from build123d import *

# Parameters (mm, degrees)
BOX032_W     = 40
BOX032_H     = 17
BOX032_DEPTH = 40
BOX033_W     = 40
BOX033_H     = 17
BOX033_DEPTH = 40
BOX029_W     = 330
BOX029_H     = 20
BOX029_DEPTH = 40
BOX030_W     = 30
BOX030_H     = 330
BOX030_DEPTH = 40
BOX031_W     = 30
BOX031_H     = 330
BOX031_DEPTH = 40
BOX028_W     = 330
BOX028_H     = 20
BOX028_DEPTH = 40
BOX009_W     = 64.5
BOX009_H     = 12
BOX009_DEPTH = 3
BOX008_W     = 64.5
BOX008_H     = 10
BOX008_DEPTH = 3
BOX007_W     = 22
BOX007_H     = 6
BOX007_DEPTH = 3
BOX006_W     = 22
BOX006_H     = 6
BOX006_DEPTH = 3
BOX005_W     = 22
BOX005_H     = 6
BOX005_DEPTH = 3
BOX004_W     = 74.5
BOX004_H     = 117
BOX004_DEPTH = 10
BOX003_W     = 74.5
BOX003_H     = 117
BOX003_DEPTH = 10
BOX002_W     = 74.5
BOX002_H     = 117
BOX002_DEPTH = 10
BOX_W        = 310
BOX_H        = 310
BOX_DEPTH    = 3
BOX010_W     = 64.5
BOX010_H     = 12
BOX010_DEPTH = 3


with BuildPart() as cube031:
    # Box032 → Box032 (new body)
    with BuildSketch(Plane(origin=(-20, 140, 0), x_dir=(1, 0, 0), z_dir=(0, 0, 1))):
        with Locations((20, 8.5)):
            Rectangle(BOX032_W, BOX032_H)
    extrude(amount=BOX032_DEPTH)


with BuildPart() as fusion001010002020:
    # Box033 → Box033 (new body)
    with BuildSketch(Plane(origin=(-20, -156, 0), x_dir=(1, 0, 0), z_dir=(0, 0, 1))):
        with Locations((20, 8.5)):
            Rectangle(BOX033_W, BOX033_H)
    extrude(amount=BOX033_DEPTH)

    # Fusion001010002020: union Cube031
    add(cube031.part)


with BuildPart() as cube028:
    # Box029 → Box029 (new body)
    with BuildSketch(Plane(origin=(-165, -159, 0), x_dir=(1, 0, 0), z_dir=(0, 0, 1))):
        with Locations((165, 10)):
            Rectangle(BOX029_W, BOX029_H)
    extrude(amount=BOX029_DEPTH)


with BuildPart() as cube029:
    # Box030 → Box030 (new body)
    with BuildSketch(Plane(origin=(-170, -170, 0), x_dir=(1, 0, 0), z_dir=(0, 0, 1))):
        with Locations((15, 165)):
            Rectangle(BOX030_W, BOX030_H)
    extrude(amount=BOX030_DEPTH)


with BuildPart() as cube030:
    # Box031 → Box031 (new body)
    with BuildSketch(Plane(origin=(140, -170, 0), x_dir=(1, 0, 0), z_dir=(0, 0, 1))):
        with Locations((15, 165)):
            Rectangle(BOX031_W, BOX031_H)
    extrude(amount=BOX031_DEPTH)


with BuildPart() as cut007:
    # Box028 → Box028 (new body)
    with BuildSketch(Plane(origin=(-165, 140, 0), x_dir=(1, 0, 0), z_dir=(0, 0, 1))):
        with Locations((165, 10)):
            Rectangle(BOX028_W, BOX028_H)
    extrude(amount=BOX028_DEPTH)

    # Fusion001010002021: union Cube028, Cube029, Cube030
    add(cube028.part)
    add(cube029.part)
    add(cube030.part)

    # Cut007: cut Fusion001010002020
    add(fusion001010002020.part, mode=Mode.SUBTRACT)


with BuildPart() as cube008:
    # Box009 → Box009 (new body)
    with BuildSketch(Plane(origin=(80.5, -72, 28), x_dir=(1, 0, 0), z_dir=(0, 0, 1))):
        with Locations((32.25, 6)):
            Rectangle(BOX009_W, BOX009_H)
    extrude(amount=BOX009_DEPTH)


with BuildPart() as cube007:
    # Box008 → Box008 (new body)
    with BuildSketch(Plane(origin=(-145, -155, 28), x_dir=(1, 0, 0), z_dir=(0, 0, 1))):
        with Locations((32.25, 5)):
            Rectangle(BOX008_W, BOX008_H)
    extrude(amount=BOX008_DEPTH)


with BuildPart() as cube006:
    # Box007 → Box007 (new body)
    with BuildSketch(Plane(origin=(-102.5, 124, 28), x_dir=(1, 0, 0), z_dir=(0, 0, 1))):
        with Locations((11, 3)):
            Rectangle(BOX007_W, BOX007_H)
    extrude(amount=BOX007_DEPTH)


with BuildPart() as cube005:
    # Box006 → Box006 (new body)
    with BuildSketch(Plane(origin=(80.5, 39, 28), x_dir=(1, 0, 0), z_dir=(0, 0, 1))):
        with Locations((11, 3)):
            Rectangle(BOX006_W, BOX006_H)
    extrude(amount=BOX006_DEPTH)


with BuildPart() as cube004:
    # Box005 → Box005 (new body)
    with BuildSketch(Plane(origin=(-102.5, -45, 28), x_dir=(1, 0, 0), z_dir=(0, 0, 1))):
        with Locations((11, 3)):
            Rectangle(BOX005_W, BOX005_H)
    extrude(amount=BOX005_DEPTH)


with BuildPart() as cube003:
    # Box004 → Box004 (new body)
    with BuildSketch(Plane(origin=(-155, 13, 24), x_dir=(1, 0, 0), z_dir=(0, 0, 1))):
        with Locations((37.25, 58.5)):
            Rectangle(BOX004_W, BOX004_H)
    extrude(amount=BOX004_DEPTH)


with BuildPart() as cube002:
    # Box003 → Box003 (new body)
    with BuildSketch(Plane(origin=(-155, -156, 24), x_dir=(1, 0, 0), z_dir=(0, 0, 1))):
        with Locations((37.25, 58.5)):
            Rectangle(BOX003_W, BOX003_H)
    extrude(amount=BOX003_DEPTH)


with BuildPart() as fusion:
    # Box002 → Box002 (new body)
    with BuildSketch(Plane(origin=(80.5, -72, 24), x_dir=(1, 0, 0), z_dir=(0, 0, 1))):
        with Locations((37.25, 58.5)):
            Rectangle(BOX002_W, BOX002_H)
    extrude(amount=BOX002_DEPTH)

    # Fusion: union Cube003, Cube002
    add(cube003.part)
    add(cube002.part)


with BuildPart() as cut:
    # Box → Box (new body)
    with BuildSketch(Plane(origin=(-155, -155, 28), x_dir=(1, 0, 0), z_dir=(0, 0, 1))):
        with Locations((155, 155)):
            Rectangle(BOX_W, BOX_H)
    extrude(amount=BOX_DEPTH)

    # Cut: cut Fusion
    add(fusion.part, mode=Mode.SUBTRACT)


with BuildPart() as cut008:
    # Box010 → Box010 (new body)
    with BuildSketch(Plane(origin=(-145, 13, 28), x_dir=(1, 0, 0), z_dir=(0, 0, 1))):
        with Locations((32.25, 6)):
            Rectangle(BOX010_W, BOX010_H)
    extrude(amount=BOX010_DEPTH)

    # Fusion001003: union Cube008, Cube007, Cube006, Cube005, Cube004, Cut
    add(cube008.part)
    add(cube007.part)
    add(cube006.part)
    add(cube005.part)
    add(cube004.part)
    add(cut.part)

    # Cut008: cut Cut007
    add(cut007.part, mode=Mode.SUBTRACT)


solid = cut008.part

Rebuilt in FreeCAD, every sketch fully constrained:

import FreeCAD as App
import Part
import Sketcher


def add_polygon(sketch, points):
    """Adds a closed chain of lines whose ends are joined by coincident constraints."""
    first, n = sketch.GeometryCount, len(points)
    for a, b in zip(points, points[1:] + points[:1]):
        sketch.addGeometry(Part.LineSegment(App.Vector(*a, 0), App.Vector(*b, 0)), False)
    for i in range(n):
        sketch.addConstraint(Sketcher.Constraint("Coincident", first + i, 2, first + (i + 1) % n, 1))

doc = App.newDocument("Part")
body = doc.addObject("PartDesign::Body", "Body")

# Sketch on XY plane
sketch1 = body.newObject("Sketcher::SketchObject", "Sketch")
sketch1.AttachmentSupport = (doc.getObject("XY_Plane"), [""])
sketch1.MapMode = "FlatFace"
add_polygon(sketch1, [(-20, 157), (-20, 140), (20, 140), (20, 157)])  # lines 0-3
sketch1.addConstraint(Sketcher.Constraint("Vertical", 0))
sketch1.addConstraint(Sketcher.Constraint("Horizontal", 1))
sketch1.addConstraint(Sketcher.Constraint("Vertical", 2))
sketch1.addConstraint(Sketcher.Constraint("Horizontal", 3))
sketch1.addConstraint(Sketcher.Constraint("DistanceX", 1, 1, 1, 2, 40.0))
sketch1.addConstraint(Sketcher.Constraint("DistanceY", 0, 2, 0, 1, 17.0))
sketch1.addConstraint(Sketcher.Constraint("DistanceX", 0, 2, -1, 1, 20.0))
sketch1.addConstraint(Sketcher.Constraint("DistanceY", -1, 1, 0, 2, 140.0))
pad1 = body.newObject("PartDesign::Pad", "Pad")
pad1.Profile = sketch1
pad1.Length = 40
body2 = doc.addObject("PartDesign::Body", "Body001")
body2.AllowCompound = True

# Sketch on XY plane
sketch2 = body2.newObject("Sketcher::SketchObject", "Sketch001")
sketch2.AttachmentSupport = (doc.getObject("XY_Plane001"), [""])
sketch2.MapMode = "FlatFace"
add_polygon(sketch2, [(-20, -139), (-20, -156), (20, -156), (20, -139)])  # lines 0-3
sketch2.addConstraint(Sketcher.Constraint("Vertical", 0))
sketch2.addConstraint(Sketcher.Constraint("Horizontal", 1))
sketch2.addConstraint(Sketcher.Constraint("Vertical", 2))
sketch2.addConstraint(Sketcher.Constraint("Horizontal", 3))
sketch2.addConstraint(Sketcher.Constraint("DistanceX", 1, 1, 1, 2, 40.0))
sketch2.addConstraint(Sketcher.Constraint("DistanceY", 0, 2, 0, 1, 17.0))
sketch2.addConstraint(Sketcher.Constraint("DistanceX", 0, 2, -1, 1, 20.0))
sketch2.addConstraint(Sketcher.Constraint("DistanceY", 0, 2, -1, 1, 156.0))
pad2 = body2.newObject("PartDesign::Pad", "Pad001")
pad2.Profile = sketch2
pad2.Length = 40
doc.recompute()

boolean = body2.newObject("PartDesign::Boolean", "Boolean")
boolean.Type = "Fuse"
boolean.addObjects([body])
body3 = doc.addObject("PartDesign::Body", "Body002")

# Sketch on XY plane
sketch3 = body3.newObject("Sketcher::SketchObject", "Sketch002")
sketch3.AttachmentSupport = (doc.getObject("XY_Plane002"), [""])
sketch3.MapMode = "FlatFace"
add_polygon(sketch3, [(-165, -139), (-165, -159), (165, -159), (165, -139)])  # lines 0-3
sketch3.addConstraint(Sketcher.Constraint("Vertical", 0))
sketch3.addConstraint(Sketcher.Constraint("Horizontal", 1))
sketch3.addConstraint(Sketcher.Constraint("Vertical", 2))
sketch3.addConstraint(Sketcher.Constraint("Horizontal", 3))
sketch3.addConstraint(Sketcher.Constraint("DistanceX", 1, 1, 1, 2, 330.0))
sketch3.addConstraint(Sketcher.Constraint("DistanceY", 0, 2, 0, 1, 20.0))
sketch3.addConstraint(Sketcher.Constraint("DistanceX", 0, 2, -1, 1, 165.0))
sketch3.addConstraint(Sketcher.Constraint("DistanceY", 0, 2, -1, 1, 159.0))
pad3 = body3.newObject("PartDesign::Pad", "Pad002")
pad3.Profile = sketch3
pad3.Length = 40
body4 = doc.addObject("PartDesign::Body", "Body003")

# Sketch on XY plane
sketch4 = body4.newObject("Sketcher::SketchObject", "Sketch003")
sketch4.AttachmentSupport = (doc.getObject("XY_Plane003"), [""])
sketch4.MapMode = "FlatFace"
add_polygon(sketch4, [(-170, 160), (-170, -170), (-140, -170), (-140, 160)])  # lines 0-3
sketch4.addConstraint(Sketcher.Constraint("Vertical", 0))
sketch4.addConstraint(Sketcher.Constraint("Horizontal", 1))
sketch4.addConstraint(Sketcher.Constraint("Vertical", 2))
sketch4.addConstraint(Sketcher.Constraint("Horizontal", 3))
sketch4.addConstraint(Sketcher.Constraint("DistanceX", 1, 1, 1, 2, 30.0))
sketch4.addConstraint(Sketcher.Constraint("DistanceY", 0, 2, 0, 1, 330.0))
sketch4.addConstraint(Sketcher.Constraint("DistanceX", 0, 2, -1, 1, 170.0))
sketch4.addConstraint(Sketcher.Constraint("DistanceY", 0, 2, -1, 1, 170.0))
pad4 = body4.newObject("PartDesign::Pad", "Pad003")
pad4.Profile = sketch4
pad4.Length = 40
body5 = doc.addObject("PartDesign::Body", "Body004")

# Sketch on XY plane
sketch5 = body5.newObject("Sketcher::SketchObject", "Sketch004")
sketch5.AttachmentSupport = (doc.getObject("XY_Plane004"), [""])
sketch5.MapMode = "FlatFace"
add_polygon(sketch5, [(140, 160), (140, -170), (170, -170), (170, 160)])  # lines 0-3
sketch5.addConstraint(Sketcher.Constraint("Vertical", 0))
sketch5.addConstraint(Sketcher.Constraint("Horizontal", 1))
sketch5.addConstraint(Sketcher.Constraint("Vertical", 2))
sketch5.addConstraint(Sketcher.Constraint("Horizontal", 3))
sketch5.addConstraint(Sketcher.Constraint("DistanceX", 1, 1, 1, 2, 30.0))
sketch5.addConstraint(Sketcher.Constraint("DistanceY", 0, 2, 0, 1, 330.0))
sketch5.addConstraint(Sketcher.Constraint("DistanceX", -1, 1, 0, 2, 140.0))
sketch5.addConstraint(Sketcher.Constraint("DistanceY", 0, 2, -1, 1, 170.0))
pad5 = body5.newObject("PartDesign::Pad", "Pad004")
pad5.Profile = sketch5
pad5.Length = 40
body6 = doc.addObject("PartDesign::Body", "Body005")
body6.AllowCompound = True

# Sketch on XY plane
sketch6 = body6.newObject("Sketcher::SketchObject", "Sketch005")
sketch6.AttachmentSupport = (doc.getObject("XY_Plane005"), [""])
sketch6.MapMode = "FlatFace"
add_polygon(sketch6, [(-165, 160), (-165, 140), (165, 140), (165, 160)])  # lines 0-3
sketch6.addConstraint(Sketcher.Constraint("Vertical", 0))
sketch6.addConstraint(Sketcher.Constraint("Horizontal", 1))
sketch6.addConstraint(Sketcher.Constraint("Vertical", 2))
sketch6.addConstraint(Sketcher.Constraint("Horizontal", 3))
sketch6.addConstraint(Sketcher.Constraint("DistanceX", 1, 1, 1, 2, 330.0))
sketch6.addConstraint(Sketcher.Constraint("DistanceY", 0, 2, 0, 1, 20.0))
sketch6.addConstraint(Sketcher.Constraint("DistanceX", 0, 2, -1, 1, 165.0))
sketch6.addConstraint(Sketcher.Constraint("DistanceY", -1, 1, 0, 2, 140.0))
pad6 = body6.newObject("PartDesign::Pad", "Pad005")
pad6.Profile = sketch6
pad6.Length = 40
doc.recompute()

boolean2 = body6.newObject("PartDesign::Boolean", "Boolean001")
boolean2.Type = "Fuse"
boolean2.addObjects([body3])
doc.recompute()

boolean3 = body6.newObject("PartDesign::Boolean", "Boolean002")
boolean3.Type = "Fuse"
boolean3.addObjects([body4])
doc.recompute()

boolean4 = body6.newObject("PartDesign::Boolean", "Boolean003")
boolean4.Type = "Fuse"
boolean4.addObjects([body5])
doc.recompute()

boolean5 = body6.newObject("PartDesign::Boolean", "Boolean004")
boolean5.Type = "Cut"
boolean5.addObjects([body2])
body7 = doc.addObject("PartDesign::Body", "Body006")

# Sketch on XY plane
sketch7 = body7.newObject("Sketcher::SketchObject", "Sketch006")
sketch7.AttachmentSupport = (doc.getObject("XY_Plane006"), [""])
sketch7.MapMode = "FlatFace"
sketch7.AttachmentOffset = App.Placement(App.Vector(0, 0, 28), App.Rotation())
add_polygon(sketch7, [(80, -60), (80, -72), (145, -72), (145, -60)])  # lines 0-3
sketch7.addConstraint(Sketcher.Constraint("Vertical", 0))
sketch7.addConstraint(Sketcher.Constraint("Horizontal", 1))
sketch7.addConstraint(Sketcher.Constraint("Vertical", 2))
sketch7.addConstraint(Sketcher.Constraint("Horizontal", 3))
sketch7.addConstraint(Sketcher.Constraint("DistanceY", 0, 2, 0, 1, 12.0))
sketch7.addConstraint(Sketcher.Constraint("DistanceX", 1, 1, 1, 2, 64.5))
sketch7.addConstraint(Sketcher.Constraint("DistanceY", 0, 2, -1, 1, 72.0))
sketch7.addConstraint(Sketcher.Constraint("DistanceX", -1, 1, 1, 2, 145.0))
pad7 = body7.newObject("PartDesign::Pad", "Pad006")
pad7.Profile = sketch7
pad7.Length = 3
body8 = doc.addObject("PartDesign::Body", "Body007")

# Sketch on XY plane
sketch8 = body8.newObject("Sketcher::SketchObject", "Sketch007")
sketch8.AttachmentSupport = (doc.getObject("XY_Plane007"), [""])
sketch8.MapMode = "FlatFace"
sketch8.AttachmentOffset = App.Placement(App.Vector(0, 0, 28), App.Rotation())
add_polygon(sketch8, [(-145, -145), (-145, -155), (-80, -155), (-80, -145)])  # lines 0-3
sketch8.addConstraint(Sketcher.Constraint("Vertical", 0))
sketch8.addConstraint(Sketcher.Constraint("Horizontal", 1))
sketch8.addConstraint(Sketcher.Constraint("Vertical", 2))
sketch8.addConstraint(Sketcher.Constraint("Horizontal", 3))
sketch8.addConstraint(Sketcher.Constraint("DistanceY", 0, 2, 0, 1, 10.0))
sketch8.addConstraint(Sketcher.Constraint("DistanceX", 1, 1, 1, 2, 64.5))
sketch8.addConstraint(Sketcher.Constraint("DistanceX", 0, 2, -1, 1, 145.0))
sketch8.addConstraint(Sketcher.Constraint("DistanceY", 0, 2, -1, 1, 155.0))
pad8 = body8.newObject("PartDesign::Pad", "Pad007")
pad8.Profile = sketch8
pad8.Length = 3
body9 = doc.addObject("PartDesign::Body", "Body008")

# Sketch on XY plane
sketch9 = body9.newObject("Sketcher::SketchObject", "Sketch008")
sketch9.AttachmentSupport = (doc.getObject("XY_Plane008"), [""])
sketch9.MapMode = "FlatFace"
sketch9.AttachmentOffset = App.Placement(App.Vector(0, 0, 28), App.Rotation())
add_polygon(sketch9, [(-102, 130), (-102, 124), (-80, 124), (-80, 130)])  # lines 0-3
sketch9.addConstraint(Sketcher.Constraint("Vertical", 0))
sketch9.addConstraint(Sketcher.Constraint("Horizontal", 1))
sketch9.addConstraint(Sketcher.Constraint("Vertical", 2))
sketch9.addConstraint(Sketcher.Constraint("Horizontal", 3))
sketch9.addConstraint(Sketcher.Constraint("DistanceX", 1, 1, 1, 2, 22.0))
sketch9.addConstraint(Sketcher.Constraint("DistanceY", 0, 2, 0, 1, 6.0))
sketch9.addConstraint(Sketcher.Constraint("DistanceY", -1, 1, 0, 2, 124.0))
sketch9.addConstraint(Sketcher.Constraint("DistanceX", 0, 2, -1, 1, 102.5))
pad9 = body9.newObject("PartDesign::Pad", "Pad008")
pad9.Profile = sketch9
pad9.Length = 3
body10 = doc.addObject("PartDesign::Body", "Body009")

# Sketch on XY plane
sketch10 = body10.newObject("Sketcher::SketchObject", "Sketch009")
sketch10.AttachmentSupport = (doc.getObject("XY_Plane009"), [""])
sketch10.MapMode = "FlatFace"
sketch10.AttachmentOffset = App.Placement(App.Vector(0, 0, 28), App.Rotation())
add_polygon(sketch10, [(80, 45), (80, 39), (102, 39), (102, 45)])  # lines 0-3
sketch10.addConstraint(Sketcher.Constraint("Vertical", 0))
sketch10.addConstraint(Sketcher.Constraint("Horizontal", 1))
sketch10.addConstraint(Sketcher.Constraint("Vertical", 2))
sketch10.addConstraint(Sketcher.Constraint("Horizontal", 3))
sketch10.addConstraint(Sketcher.Constraint("DistanceX", 1, 1, 1, 2, 22.0))
sketch10.addConstraint(Sketcher.Constraint("DistanceY", 0, 2, 0, 1, 6.0))
sketch10.addConstraint(Sketcher.Constraint("DistanceY", -1, 1, 0, 2, 39.0))
sketch10.addConstraint(Sketcher.Constraint("DistanceX", -1, 1, 0, 2, 80.5))
pad10 = body10.newObject("PartDesign::Pad", "Pad009")
pad10.Profile = sketch10
pad10.Length = 3
body11 = doc.addObject("PartDesign::Body", "Body010")

# Sketch on XY plane
sketch11 = body11.newObject("Sketcher::SketchObject", "Sketch010")
sketch11.AttachmentSupport = (doc.getObject("XY_Plane010"), [""])
sketch11.MapMode = "FlatFace"
sketch11.AttachmentOffset = App.Placement(App.Vector(0, 0, 28), App.Rotation())
add_polygon(sketch11, [(-102, -39), (-102, -45), (-80, -45), (-80, -39)])  # lines 0-3
sketch11.addConstraint(Sketcher.Constraint("Vertical", 0))
sketch11.addConstraint(Sketcher.Constraint("Horizontal", 1))
sketch11.addConstraint(Sketcher.Constraint("Vertical", 2))
sketch11.addConstraint(Sketcher.Constraint("Horizontal", 3))
sketch11.addConstraint(Sketcher.Constraint("DistanceX", 1, 1, 1, 2, 22.0))
sketch11.addConstraint(Sketcher.Constraint("DistanceY", 0, 2, 0, 1, 6.0))
sketch11.addConstraint(Sketcher.Constraint("DistanceY", 0, 2, -1, 1, 45.0))
sketch11.addConstraint(Sketcher.Constraint("DistanceX", 0, 2, -1, 1, 102.5))
pad11 = body11.newObject("PartDesign::Pad", "Pad010")
pad11.Profile = sketch11
pad11.Length = 3
body12 = doc.addObject("PartDesign::Body", "Body011")

# Sketch on XY plane
sketch12 = body12.newObject("Sketcher::SketchObject", "Sketch011")
sketch12.AttachmentSupport = (doc.getObject("XY_Plane011"), [""])
sketch12.MapMode = "FlatFace"
sketch12.AttachmentOffset = App.Placement(App.Vector(0, 0, 24), App.Rotation())
add_polygon(sketch12, [(-155, 130), (-155, 13), (-80, 13), (-80, 130)])  # lines 0-3
sketch12.addConstraint(Sketcher.Constraint("Vertical", 0))
sketch12.addConstraint(Sketcher.Constraint("Horizontal", 1))
sketch12.addConstraint(Sketcher.Constraint("Vertical", 2))
sketch12.addConstraint(Sketcher.Constraint("Horizontal", 3))
sketch12.addConstraint(Sketcher.Constraint("DistanceY", 0, 2, 0, 1, 117.0))
sketch12.addConstraint(Sketcher.Constraint("DistanceX", 1, 1, 1, 2, 74.5))
sketch12.addConstraint(Sketcher.Constraint("DistanceX", 0, 2, -1, 1, 155.0))
sketch12.addConstraint(Sketcher.Constraint("DistanceY", -1, 1, 0, 2, 13.0))
pad12 = body12.newObject("PartDesign::Pad", "Pad011")
pad12.Profile = sketch12
pad12.Length = 10
body13 = doc.addObject("PartDesign::Body", "Body012")

# Sketch on XY plane
sketch13 = body13.newObject("Sketcher::SketchObject", "Sketch012")
sketch13.AttachmentSupport = (doc.getObject("XY_Plane012"), [""])
sketch13.MapMode = "FlatFace"
sketch13.AttachmentOffset = App.Placement(App.Vector(0, 0, 24), App.Rotation())
add_polygon(sketch13, [(-155, -39), (-155, -156), (-80, -156), (-80, -39)])  # lines 0-3
sketch13.addConstraint(Sketcher.Constraint("Vertical", 0))
sketch13.addConstraint(Sketcher.Constraint("Horizontal", 1))
sketch13.addConstraint(Sketcher.Constraint("Vertical", 2))
sketch13.addConstraint(Sketcher.Constraint("Horizontal", 3))
sketch13.addConstraint(Sketcher.Constraint("DistanceY", 0, 2, 0, 1, 117.0))
sketch13.addConstraint(Sketcher.Constraint("DistanceX", 1, 1, 1, 2, 74.5))
sketch13.addConstraint(Sketcher.Constraint("DistanceX", 0, 2, -1, 1, 155.0))
sketch13.addConstraint(Sketcher.Constraint("DistanceY", 0, 2, -1, 1, 156.0))
pad13 = body13.newObject("PartDesign::Pad", "Pad012")
pad13.Profile = sketch13
pad13.Length = 10
body14 = doc.addObject("PartDesign::Body", "Body013")
body14.AllowCompound = True

# Sketch on XY plane
sketch14 = body14.newObject("Sketcher::SketchObject", "Sketch013")
sketch14.AttachmentSupport = (doc.getObject("XY_Plane013"), [""])
sketch14.MapMode = "FlatFace"
sketch14.AttachmentOffset = App.Placement(App.Vector(0, 0, 24), App.Rotation())
add_polygon(sketch14, [(80, 45), (80, -72), (155, -72), (155, 45)])  # lines 0-3
sketch14.addConstraint(Sketcher.Constraint("Vertical", 0))
sketch14.addConstraint(Sketcher.Constraint("Horizontal", 1))
sketch14.addConstraint(Sketcher.Constraint("Vertical", 2))
sketch14.addConstraint(Sketcher.Constraint("Horizontal", 3))
sketch14.addConstraint(Sketcher.Constraint("DistanceY", 0, 2, 0, 1, 117.0))
sketch14.addConstraint(Sketcher.Constraint("DistanceX", 1, 1, 1, 2, 74.5))
sketch14.addConstraint(Sketcher.Constraint("DistanceY", 0, 2, -1, 1, 72.0))
sketch14.addConstraint(Sketcher.Constraint("DistanceX", -1, 1, 1, 2, 155.0))
pad14 = body14.newObject("PartDesign::Pad", "Pad013")
pad14.Profile = sketch14
pad14.Length = 10
doc.recompute()

boolean6 = body14.newObject("PartDesign::Boolean", "Boolean005")
boolean6.Type = "Fuse"
boolean6.addObjects([body12])
doc.recompute()

boolean7 = body14.newObject("PartDesign::Boolean", "Boolean006")
boolean7.Type = "Fuse"
boolean7.addObjects([body13])
body15 = doc.addObject("PartDesign::Body", "Body014")

# Sketch on XY plane
sketch15 = body15.newObject("Sketcher::SketchObject", "Sketch014")
sketch15.AttachmentSupport = (doc.getObject("XY_Plane014"), [""])
sketch15.MapMode = "FlatFace"
sketch15.AttachmentOffset = App.Placement(App.Vector(0, 0, 28), App.Rotation())
add_polygon(sketch15, [(-155, 155), (-155, -155), (155, -155), (155, 155)])  # lines 0-3
sketch15.addConstraint(Sketcher.Constraint("Vertical", 0))
sketch15.addConstraint(Sketcher.Constraint("Horizontal", 1))
sketch15.addConstraint(Sketcher.Constraint("Vertical", 2))
sketch15.addConstraint(Sketcher.Constraint("Horizontal", 3))
sketch15.addConstraint(Sketcher.Constraint("Symmetric", 0, 2, 2, 2, -1, 1))
sketch15.addConstraint(Sketcher.Constraint("Equal", 3, 0))
sketch15.addConstraint(Sketcher.Constraint("DistanceX", 1, 1, 1, 2, 310.0))
pad15 = body15.newObject("PartDesign::Pad", "Pad014")
pad15.Profile = sketch15
pad15.Length = 3
doc.recompute()

boolean8 = body15.newObject("PartDesign::Boolean", "Boolean007")
boolean8.Type = "Cut"
boolean8.addObjects([body14])
body16 = doc.addObject("PartDesign::Body", "Body015")
body16.AllowCompound = True

# Sketch on XY plane
sketch16 = body16.newObject("Sketcher::SketchObject", "Sketch015")
sketch16.AttachmentSupport = (doc.getObject("XY_Plane015"), [""])
sketch16.MapMode = "FlatFace"
sketch16.AttachmentOffset = App.Placement(App.Vector(0, 0, 28), App.Rotation())
add_polygon(sketch16, [(-145, 25), (-145, 13), (-80, 13), (-80, 25)])  # lines 0-3
sketch16.addConstraint(Sketcher.Constraint("Vertical", 0))
sketch16.addConstraint(Sketcher.Constraint("Horizontal", 1))
sketch16.addConstraint(Sketcher.Constraint("Vertical", 2))
sketch16.addConstraint(Sketcher.Constraint("Horizontal", 3))
sketch16.addConstraint(Sketcher.Constraint("DistanceY", 0, 2, 0, 1, 12.0))
sketch16.addConstraint(Sketcher.Constraint("DistanceX", 1, 1, 1, 2, 64.5))
sketch16.addConstraint(Sketcher.Constraint("DistanceX", 0, 2, -1, 1, 145.0))
sketch16.addConstraint(Sketcher.Constraint("DistanceY", -1, 1, 0, 2, 13.0))
pad16 = body16.newObject("PartDesign::Pad", "Pad015")
pad16.Profile = sketch16
pad16.Length = 3
doc.recompute()

boolean9 = body16.newObject("PartDesign::Boolean", "Boolean008")
boolean9.Type = "Fuse"
boolean9.addObjects([body7])
doc.recompute()

boolean10 = body16.newObject("PartDesign::Boolean", "Boolean009")
boolean10.Type = "Fuse"
boolean10.addObjects([body8])
doc.recompute()

boolean11 = body16.newObject("PartDesign::Boolean", "Boolean010")
boolean11.Type = "Fuse"
boolean11.addObjects([body9])
doc.recompute()

boolean12 = body16.newObject("PartDesign::Boolean", "Boolean011")
boolean12.Type = "Fuse"
boolean12.addObjects([body10])
doc.recompute()

boolean13 = body16.newObject("PartDesign::Boolean", "Boolean012")
boolean13.Type = "Fuse"
boolean13.addObjects([body11])
doc.recompute()

boolean14 = body16.newObject("PartDesign::Boolean", "Boolean013")
boolean14.Type = "Fuse"
boolean14.addObjects([body15])
doc.recompute()

boolean15 = body16.newObject("PartDesign::Boolean", "Boolean014")
boolean15.Type = "Cut"
boolean15.addObjects([body6])

doc.recompute()
